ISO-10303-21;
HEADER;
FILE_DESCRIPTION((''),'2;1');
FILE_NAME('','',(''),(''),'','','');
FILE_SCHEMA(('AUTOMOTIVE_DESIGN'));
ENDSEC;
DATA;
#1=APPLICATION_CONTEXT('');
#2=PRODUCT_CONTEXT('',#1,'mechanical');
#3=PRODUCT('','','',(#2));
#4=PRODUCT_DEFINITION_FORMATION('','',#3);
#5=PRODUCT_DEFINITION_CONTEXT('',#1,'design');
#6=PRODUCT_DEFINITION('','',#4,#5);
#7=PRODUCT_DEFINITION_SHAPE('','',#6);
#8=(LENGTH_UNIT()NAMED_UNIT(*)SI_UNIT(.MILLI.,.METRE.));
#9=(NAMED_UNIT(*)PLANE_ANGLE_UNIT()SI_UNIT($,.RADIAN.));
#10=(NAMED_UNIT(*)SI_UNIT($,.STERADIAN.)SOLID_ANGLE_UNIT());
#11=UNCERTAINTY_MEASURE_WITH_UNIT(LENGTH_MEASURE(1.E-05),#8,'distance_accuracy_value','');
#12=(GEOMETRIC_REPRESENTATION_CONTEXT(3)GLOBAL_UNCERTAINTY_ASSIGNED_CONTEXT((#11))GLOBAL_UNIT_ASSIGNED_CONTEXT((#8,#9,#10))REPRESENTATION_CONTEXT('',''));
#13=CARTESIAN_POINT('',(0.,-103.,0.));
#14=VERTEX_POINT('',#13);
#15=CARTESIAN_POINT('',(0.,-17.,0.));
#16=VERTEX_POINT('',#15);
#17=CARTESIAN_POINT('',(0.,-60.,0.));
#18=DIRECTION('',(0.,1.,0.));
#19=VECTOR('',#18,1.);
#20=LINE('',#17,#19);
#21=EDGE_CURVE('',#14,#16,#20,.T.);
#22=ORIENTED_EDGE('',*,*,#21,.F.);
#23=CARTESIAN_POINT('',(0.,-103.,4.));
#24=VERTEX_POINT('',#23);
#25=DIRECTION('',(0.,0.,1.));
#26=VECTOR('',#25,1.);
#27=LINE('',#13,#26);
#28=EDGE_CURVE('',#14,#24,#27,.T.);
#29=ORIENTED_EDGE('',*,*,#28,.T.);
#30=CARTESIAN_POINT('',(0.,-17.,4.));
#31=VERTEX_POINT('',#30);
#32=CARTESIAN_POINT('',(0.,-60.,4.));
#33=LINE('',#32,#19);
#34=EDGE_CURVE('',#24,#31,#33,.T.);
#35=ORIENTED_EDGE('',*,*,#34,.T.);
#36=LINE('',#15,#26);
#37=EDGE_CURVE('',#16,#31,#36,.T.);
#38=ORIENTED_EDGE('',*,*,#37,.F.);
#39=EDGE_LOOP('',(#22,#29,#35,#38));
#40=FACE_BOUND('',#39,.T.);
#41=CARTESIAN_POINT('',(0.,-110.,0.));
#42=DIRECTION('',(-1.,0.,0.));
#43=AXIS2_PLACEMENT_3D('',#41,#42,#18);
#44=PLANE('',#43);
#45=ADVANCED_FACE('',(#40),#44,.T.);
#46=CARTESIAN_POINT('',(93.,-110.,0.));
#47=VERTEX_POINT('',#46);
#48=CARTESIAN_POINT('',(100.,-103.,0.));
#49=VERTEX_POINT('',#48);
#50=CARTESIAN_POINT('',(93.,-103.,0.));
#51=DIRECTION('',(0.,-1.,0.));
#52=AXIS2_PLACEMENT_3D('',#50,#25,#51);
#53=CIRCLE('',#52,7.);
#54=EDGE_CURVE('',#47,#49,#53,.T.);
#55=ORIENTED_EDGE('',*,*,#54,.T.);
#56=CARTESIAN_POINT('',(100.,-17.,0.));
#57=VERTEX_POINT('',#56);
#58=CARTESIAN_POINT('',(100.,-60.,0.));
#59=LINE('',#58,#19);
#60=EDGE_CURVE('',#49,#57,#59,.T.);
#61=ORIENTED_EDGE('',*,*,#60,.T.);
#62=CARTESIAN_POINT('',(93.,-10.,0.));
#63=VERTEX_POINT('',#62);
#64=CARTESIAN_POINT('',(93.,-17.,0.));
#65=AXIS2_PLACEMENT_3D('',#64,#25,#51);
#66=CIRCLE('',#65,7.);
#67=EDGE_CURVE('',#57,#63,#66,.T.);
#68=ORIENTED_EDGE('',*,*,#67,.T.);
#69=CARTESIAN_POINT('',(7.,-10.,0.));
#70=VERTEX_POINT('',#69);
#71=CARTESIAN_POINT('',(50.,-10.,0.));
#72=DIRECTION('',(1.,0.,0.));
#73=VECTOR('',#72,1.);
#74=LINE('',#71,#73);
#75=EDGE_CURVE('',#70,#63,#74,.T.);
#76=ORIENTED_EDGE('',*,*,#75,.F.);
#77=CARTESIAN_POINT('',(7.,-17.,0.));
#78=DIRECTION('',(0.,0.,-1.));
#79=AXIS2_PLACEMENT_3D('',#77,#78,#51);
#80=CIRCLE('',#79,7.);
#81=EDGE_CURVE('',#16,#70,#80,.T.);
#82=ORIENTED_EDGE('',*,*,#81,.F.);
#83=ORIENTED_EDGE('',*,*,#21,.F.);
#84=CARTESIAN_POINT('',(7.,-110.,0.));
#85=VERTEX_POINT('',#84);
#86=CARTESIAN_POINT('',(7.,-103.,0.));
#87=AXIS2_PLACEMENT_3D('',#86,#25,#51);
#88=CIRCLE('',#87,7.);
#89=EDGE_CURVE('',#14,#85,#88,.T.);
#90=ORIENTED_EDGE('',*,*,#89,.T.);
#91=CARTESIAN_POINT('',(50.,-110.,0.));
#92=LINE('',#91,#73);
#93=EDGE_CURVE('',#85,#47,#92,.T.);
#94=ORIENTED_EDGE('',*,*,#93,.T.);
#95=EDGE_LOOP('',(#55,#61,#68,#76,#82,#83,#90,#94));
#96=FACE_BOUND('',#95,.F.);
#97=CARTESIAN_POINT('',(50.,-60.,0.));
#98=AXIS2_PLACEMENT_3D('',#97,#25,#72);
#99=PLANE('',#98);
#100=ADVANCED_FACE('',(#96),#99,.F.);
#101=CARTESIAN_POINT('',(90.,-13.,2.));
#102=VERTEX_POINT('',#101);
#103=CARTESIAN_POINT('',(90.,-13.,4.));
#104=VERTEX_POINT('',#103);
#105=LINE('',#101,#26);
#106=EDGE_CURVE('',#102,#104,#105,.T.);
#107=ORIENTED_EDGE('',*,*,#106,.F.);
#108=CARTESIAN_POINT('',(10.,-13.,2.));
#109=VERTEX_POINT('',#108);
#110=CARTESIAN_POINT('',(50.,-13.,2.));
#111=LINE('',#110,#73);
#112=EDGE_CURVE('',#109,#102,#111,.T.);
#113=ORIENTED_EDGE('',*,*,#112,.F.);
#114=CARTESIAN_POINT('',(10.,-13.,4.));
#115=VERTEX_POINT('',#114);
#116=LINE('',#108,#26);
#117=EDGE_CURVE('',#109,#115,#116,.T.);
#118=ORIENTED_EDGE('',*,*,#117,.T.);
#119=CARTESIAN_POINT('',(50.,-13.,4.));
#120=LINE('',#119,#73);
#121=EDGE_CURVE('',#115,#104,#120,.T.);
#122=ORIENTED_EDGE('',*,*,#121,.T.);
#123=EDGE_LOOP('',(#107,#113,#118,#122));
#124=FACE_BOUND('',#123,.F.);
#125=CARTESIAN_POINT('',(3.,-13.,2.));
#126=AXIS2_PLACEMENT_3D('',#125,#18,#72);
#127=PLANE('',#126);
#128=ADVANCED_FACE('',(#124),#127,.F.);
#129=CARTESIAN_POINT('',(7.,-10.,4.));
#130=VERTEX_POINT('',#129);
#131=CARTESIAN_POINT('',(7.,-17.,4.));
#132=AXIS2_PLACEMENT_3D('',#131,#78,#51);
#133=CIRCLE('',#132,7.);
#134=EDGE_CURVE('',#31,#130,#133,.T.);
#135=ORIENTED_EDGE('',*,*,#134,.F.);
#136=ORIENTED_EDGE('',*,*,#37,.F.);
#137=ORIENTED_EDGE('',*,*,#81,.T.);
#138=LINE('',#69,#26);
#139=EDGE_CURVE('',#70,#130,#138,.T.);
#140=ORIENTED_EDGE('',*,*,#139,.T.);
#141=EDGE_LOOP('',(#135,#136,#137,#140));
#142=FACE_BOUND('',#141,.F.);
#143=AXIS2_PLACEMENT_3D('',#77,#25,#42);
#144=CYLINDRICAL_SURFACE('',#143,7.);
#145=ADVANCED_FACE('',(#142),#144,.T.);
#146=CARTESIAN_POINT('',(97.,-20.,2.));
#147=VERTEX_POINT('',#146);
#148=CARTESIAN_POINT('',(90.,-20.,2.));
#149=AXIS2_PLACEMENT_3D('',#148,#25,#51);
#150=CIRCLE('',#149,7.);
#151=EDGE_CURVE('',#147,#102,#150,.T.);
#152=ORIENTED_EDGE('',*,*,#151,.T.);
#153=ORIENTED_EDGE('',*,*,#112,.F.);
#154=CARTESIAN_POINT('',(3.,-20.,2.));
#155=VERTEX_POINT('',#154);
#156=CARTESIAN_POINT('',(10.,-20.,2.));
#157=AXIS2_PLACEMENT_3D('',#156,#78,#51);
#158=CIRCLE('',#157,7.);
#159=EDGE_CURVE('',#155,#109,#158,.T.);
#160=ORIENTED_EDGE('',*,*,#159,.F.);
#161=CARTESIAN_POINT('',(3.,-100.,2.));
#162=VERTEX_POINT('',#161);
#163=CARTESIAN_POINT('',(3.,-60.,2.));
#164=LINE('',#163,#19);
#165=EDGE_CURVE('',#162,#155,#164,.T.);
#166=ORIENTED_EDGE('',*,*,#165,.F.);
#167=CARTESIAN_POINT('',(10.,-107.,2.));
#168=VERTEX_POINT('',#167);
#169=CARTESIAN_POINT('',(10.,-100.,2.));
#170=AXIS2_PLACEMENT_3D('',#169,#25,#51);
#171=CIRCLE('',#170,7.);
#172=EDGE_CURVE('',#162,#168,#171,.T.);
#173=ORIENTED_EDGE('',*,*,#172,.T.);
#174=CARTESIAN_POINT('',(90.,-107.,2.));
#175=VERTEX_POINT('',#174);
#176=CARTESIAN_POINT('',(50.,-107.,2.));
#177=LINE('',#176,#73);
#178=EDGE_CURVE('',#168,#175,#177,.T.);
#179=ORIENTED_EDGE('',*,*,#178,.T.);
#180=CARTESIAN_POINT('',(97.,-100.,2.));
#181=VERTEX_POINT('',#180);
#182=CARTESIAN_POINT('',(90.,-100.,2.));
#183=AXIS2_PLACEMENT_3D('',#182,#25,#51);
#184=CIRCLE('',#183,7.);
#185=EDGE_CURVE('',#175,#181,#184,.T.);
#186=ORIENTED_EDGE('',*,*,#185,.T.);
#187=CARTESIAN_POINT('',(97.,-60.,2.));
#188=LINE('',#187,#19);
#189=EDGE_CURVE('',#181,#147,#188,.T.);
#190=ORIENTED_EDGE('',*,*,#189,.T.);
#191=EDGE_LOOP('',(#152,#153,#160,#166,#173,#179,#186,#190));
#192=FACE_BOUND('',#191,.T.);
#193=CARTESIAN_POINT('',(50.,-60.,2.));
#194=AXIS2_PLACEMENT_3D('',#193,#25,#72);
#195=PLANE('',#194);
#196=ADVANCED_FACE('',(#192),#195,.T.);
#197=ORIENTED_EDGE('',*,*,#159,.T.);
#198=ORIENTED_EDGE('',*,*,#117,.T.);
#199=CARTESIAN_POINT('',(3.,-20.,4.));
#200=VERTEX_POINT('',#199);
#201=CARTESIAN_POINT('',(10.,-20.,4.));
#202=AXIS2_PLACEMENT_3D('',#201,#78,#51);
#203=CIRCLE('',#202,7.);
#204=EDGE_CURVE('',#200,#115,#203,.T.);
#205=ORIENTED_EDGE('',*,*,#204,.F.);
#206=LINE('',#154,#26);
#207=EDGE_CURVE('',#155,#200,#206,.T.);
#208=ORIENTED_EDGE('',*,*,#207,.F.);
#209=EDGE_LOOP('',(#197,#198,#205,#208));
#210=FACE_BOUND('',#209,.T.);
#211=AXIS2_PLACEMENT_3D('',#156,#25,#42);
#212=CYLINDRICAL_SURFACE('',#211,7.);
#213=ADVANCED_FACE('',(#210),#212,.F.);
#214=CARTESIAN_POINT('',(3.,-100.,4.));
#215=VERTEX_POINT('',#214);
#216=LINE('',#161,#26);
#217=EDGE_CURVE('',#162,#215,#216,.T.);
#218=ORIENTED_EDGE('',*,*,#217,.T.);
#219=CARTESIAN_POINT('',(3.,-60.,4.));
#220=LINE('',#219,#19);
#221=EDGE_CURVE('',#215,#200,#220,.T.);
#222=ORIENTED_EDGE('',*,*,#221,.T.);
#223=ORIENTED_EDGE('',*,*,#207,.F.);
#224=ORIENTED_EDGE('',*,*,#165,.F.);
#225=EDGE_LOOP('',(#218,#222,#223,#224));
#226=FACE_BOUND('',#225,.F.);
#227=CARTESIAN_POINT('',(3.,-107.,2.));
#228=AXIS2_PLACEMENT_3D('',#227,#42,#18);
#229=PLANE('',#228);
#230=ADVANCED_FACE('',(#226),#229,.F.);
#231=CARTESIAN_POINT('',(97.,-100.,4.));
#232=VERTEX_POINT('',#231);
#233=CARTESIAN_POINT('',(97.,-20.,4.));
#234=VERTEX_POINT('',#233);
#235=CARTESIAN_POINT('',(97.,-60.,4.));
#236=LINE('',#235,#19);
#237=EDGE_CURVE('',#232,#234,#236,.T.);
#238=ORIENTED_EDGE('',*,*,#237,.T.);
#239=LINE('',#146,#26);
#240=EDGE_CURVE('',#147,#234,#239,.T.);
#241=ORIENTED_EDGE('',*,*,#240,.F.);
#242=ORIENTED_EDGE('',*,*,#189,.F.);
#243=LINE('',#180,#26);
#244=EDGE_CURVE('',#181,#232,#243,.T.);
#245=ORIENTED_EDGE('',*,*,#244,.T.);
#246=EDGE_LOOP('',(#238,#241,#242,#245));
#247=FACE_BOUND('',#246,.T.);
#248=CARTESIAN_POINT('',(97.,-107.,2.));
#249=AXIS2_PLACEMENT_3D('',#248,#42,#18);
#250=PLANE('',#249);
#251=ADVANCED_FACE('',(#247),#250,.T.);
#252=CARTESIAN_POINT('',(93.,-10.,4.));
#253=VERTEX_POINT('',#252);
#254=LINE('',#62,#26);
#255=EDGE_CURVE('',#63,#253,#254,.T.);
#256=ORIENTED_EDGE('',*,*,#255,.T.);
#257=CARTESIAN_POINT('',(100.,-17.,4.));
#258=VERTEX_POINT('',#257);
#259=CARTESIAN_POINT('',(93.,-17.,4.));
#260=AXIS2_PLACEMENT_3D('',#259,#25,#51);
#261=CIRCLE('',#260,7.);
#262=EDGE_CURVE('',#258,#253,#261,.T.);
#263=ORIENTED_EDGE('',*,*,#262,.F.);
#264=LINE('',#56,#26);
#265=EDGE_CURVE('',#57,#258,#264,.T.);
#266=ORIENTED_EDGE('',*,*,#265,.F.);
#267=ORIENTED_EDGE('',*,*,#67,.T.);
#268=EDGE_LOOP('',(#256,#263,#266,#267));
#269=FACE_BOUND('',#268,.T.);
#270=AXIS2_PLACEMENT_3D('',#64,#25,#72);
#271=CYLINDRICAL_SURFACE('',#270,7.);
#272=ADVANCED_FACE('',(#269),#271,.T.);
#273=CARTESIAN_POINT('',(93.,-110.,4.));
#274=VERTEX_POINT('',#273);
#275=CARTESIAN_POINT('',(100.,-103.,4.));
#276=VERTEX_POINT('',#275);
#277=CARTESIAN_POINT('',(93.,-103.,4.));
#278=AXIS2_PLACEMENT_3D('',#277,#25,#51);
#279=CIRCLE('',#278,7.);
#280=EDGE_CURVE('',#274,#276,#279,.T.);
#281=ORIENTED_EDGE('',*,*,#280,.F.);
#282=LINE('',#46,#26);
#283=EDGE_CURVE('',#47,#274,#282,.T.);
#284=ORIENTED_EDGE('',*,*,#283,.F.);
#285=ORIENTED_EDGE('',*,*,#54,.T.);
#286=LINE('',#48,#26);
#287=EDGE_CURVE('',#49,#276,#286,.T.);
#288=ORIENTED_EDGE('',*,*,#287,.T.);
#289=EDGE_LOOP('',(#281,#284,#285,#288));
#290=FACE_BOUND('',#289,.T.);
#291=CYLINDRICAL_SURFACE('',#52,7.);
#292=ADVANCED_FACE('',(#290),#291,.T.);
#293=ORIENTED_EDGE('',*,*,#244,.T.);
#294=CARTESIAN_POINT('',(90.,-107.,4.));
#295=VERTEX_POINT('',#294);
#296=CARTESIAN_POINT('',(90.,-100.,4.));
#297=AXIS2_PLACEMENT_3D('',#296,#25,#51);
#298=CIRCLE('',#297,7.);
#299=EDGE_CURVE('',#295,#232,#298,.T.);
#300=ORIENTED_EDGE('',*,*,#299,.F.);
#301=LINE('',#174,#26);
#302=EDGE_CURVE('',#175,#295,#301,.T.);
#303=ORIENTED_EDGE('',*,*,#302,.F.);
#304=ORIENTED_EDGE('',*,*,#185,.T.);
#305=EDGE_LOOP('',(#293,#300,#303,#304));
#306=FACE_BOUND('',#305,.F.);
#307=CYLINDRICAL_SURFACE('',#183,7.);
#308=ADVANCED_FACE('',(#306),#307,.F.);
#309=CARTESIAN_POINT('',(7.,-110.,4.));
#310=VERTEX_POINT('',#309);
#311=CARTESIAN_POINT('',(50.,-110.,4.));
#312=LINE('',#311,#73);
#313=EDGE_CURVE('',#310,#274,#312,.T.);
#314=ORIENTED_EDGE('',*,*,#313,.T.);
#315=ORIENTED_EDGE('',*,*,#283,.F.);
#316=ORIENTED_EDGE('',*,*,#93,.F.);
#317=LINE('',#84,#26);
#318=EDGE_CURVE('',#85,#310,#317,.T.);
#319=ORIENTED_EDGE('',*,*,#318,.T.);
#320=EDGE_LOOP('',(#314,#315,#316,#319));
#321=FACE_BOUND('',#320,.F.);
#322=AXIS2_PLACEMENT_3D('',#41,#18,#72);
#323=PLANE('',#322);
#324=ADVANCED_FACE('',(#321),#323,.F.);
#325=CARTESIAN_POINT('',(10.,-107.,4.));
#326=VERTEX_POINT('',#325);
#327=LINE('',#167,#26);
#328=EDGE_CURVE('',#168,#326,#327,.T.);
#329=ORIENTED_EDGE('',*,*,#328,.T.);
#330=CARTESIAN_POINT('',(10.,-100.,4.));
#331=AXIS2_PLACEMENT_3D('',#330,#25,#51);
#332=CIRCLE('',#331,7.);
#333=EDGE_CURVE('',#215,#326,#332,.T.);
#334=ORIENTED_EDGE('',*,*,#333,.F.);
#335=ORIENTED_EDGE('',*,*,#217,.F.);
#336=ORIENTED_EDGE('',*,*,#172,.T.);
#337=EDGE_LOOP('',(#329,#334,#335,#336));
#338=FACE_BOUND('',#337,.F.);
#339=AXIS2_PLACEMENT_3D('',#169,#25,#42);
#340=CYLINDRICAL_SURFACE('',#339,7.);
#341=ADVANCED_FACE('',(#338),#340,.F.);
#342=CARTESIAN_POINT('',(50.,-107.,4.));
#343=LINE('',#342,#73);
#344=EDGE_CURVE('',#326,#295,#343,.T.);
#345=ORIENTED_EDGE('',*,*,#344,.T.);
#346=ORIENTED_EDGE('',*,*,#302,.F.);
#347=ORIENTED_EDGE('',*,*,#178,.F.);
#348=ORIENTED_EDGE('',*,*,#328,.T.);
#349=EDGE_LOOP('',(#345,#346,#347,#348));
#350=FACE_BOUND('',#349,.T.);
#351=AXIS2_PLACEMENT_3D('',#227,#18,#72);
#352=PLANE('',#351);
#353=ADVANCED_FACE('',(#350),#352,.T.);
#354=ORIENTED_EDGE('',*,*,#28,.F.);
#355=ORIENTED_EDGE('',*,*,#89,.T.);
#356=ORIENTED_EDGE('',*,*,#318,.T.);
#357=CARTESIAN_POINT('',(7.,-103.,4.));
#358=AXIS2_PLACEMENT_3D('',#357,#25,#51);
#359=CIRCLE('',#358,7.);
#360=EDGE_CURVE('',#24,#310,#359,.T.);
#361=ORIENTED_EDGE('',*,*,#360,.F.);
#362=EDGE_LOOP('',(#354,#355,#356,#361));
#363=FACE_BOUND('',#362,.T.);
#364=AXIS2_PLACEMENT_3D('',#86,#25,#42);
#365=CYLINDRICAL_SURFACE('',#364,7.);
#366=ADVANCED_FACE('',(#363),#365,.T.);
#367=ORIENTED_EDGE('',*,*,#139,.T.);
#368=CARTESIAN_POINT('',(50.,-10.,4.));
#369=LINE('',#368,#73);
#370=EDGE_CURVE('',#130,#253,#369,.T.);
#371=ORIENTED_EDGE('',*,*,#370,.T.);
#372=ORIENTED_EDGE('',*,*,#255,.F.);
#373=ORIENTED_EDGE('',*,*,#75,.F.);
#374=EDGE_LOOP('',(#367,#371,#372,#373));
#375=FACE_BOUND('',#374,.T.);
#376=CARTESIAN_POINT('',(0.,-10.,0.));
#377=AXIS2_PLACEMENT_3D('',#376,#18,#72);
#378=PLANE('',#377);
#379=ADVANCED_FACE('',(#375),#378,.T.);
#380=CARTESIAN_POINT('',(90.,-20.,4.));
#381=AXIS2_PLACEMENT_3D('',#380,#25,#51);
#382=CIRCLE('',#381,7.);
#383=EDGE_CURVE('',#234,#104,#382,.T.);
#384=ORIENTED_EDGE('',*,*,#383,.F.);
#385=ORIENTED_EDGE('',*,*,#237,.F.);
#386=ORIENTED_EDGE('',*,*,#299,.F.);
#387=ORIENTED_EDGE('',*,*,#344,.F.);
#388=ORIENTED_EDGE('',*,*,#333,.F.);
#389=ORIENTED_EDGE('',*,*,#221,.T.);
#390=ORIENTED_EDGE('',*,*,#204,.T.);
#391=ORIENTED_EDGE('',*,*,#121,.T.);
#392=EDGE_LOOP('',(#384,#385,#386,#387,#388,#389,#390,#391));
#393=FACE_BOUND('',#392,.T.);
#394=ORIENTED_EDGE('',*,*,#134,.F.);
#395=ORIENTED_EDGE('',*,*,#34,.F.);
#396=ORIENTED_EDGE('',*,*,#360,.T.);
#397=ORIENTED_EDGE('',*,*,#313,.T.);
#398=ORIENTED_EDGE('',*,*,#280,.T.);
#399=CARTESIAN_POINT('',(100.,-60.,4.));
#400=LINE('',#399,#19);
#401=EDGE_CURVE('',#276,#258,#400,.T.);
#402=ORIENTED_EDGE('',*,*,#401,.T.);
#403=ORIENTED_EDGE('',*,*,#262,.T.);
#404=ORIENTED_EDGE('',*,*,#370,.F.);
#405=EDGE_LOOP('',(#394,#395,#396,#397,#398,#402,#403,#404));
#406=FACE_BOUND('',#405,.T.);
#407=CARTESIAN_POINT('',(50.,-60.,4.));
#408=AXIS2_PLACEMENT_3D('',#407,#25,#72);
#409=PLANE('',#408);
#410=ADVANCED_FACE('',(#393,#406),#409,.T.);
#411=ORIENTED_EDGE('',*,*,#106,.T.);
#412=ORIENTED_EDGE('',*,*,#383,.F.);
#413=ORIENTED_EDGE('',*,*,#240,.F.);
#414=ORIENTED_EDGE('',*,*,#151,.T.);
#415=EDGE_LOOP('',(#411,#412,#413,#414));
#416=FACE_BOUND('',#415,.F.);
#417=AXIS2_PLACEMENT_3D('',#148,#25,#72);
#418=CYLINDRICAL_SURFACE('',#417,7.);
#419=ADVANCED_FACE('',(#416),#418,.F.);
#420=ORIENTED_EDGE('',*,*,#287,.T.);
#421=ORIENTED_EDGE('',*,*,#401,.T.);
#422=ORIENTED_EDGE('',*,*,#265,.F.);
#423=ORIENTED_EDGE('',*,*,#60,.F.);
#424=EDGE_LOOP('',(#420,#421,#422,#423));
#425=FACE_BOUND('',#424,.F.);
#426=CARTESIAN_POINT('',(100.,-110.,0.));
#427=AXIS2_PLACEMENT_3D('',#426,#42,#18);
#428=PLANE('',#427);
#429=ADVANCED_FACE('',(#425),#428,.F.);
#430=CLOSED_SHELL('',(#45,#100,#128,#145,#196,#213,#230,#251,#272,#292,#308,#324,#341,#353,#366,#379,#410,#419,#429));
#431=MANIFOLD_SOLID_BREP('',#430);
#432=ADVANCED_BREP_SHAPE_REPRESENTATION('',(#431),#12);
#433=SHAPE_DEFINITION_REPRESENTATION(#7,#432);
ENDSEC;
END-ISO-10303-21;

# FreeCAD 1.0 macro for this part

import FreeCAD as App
import Part
import Sketcher

V = App.Vector
Q = App.Units.Quantity


def edges_at(feature, points):
    """Names of the edges that pass closest to the given points."""
    edges = feature.Shape.Edges
    near = lambda p: min(range(len(edges)), key=lambda i: edges[i].distToShape(Part.Vertex(*p))[0])
    return sorted({f"Edge{near(p) + 1}" for p in points})

doc = App.newDocument("Part")
params = doc.addObject("Spreadsheet::Sheet", "Params")
for row, (alias, value) in enumerate([
    ("sketch1_width", "94 mm"),
    ("pad1_length", "2 mm"),
    ("fillet_radius", "7 mm"),
    ("sketch2_width", "100 mm"),
    ("pad2_length", "4 mm"),
    ("fillet2_radius", "7 mm"),
], start=1):
    params.set(f"A{row}", alias)
    params.set(f"B{row}", "=" + value)
    params.setAlias(f"B{row}", alias)

body = doc.addObject("PartDesign::Body", "Body")

sketch1 = doc.addObject("Sketcher::SketchObject", "Sketch")
body.addObject(sketch1)
sketch1.AttachmentSupport = (doc.XY_Plane, [""])
sketch1.MapMode = "FlatFace"
sketch1.AttachmentOffset = App.Placement(V(0, 0, 2), App.Rotation())
sketch1.addGeometry([
    Part.LineSegment(V(3, 97, 0), V(3, 3, 0)),
    Part.LineSegment(V(3, 3, 0), V(97, 3, 0)),
    Part.LineSegment(V(97, 3, 0), V(97, 97, 0)),
    Part.LineSegment(V(97, 97, 0), V(3, 97, 0)),
], False)
sketch1.addConstraint([
    Sketcher.Constraint("Coincident", 0, 2, 1, 1),
    Sketcher.Constraint("Coincident", 1, 2, 2, 1),
    Sketcher.Constraint("Coincident", 2, 2, 3, 1),
    Sketcher.Constraint("Coincident", 3, 2, 0, 1),
    Sketcher.Constraint("Vertical", 0),
    Sketcher.Constraint("Horizontal", 1),
    Sketcher.Constraint("Vertical", 2),
    Sketcher.Constraint("Horizontal", 3),
    Sketcher.Constraint("Equal", 3, 0),
    Sketcher.Constraint("DistanceX", 1, 1, 1, 2, Q("94 mm")),
    Sketcher.Constraint("DistanceX", -1, 1, 0, 2, Q("3 mm")),
    Sketcher.Constraint("DistanceY", -1, 1, 0, 2, Q("3 mm")),
])
sketch1.setExpression("Constraints[9]", "Params.sketch1_width")
pad1 = doc.addObject("PartDesign::Pad", "Pad")
body.addObject(pad1)
pad1.Profile = sketch1
pad1.setExpression("Length", "Params.pad1_length")
doc.recompute()

fillet = doc.addObject("PartDesign::Fillet", "Fillet")
body.addObject(fillet)
fillet.Base = (pad1, edges_at(pad1, [
    (3, 3, 3),
    (3, 97, 3),
    (97, 3, 3),
    (97, 97, 3),
]))
fillet.setExpression("Radius", "Params.fillet_radius")
body2 = doc.addObject("PartDesign::Body", "Body001")

sketch2 = doc.addObject("Sketcher::SketchObject", "Sketch001")
body2.addObject(sketch2)
sketch2.AttachmentSupport = (doc.getObject("XY_Plane001"), [""])
sketch2.MapMode = "FlatFace"
sketch2.addGeometry([
    Part.LineSegment(V(0, 100, 0), V(0, 0, 0)),
    Part.LineSegment(V(0, 0, 0), V(100, 0, 0)),
    Part.LineSegment(V(100, 0, 0), V(100, 100, 0)),
    Part.LineSegment(V(100, 100, 0), V(0, 100, 0)),
], False)
sketch2.addConstraint([
    Sketcher.Constraint("Coincident", 0, 2, 1, 1),
    Sketcher.Constraint("Coincident", 1, 2, 2, 1),
    Sketcher.Constraint("Coincident", 2, 2, 3, 1),
    Sketcher.Constraint("Coincident", 3, 2, 0, 1),
    Sketcher.Constraint("Vertical", 0),
    Sketcher.Constraint("Horizontal", 1),
    Sketcher.Constraint("Vertical", 2),
    Sketcher.Constraint("Horizontal", 3),
    Sketcher.Constraint("Coincident", 0, 2, -1, 1),
    Sketcher.Constraint("Equal", 3, 0),
    Sketcher.Constraint("DistanceX", 1, 1, 1, 2, Q("100 mm")),
])
sketch2.setExpression("Constraints[10]", "Params.sketch2_width")
pad2 = doc.addObject("PartDesign::Pad", "Pad001")
body2.addObject(pad2)
pad2.Profile = sketch2
pad2.setExpression("Length", "Params.pad2_length")
doc.recompute()

fillet2 = doc.addObject("PartDesign::Fillet", "Fillet001")
body2.addObject(fillet2)
fillet2.Base = (pad2, edges_at(pad2, [
    (0, 0, 2),
    (0, 100, 2),
    (100, 0, 2),
    (100, 100, 2),
]))
fillet2.setExpression("Radius", "Params.fillet2_radius")
doc.recompute()

boolean = doc.addObject("PartDesign::Boolean", "Boolean")
body2.addObject(boolean)
boolean.Type = "Cut"
boolean.addObjects([body])
body3 = doc.addObject("PartDesign::Body", "Body002")
doc.recompute()

body2.Placement = App.Placement(V(0, -110, 0), App.Rotation(V(0, 0, 1), 0))
boolean2 = doc.addObject("PartDesign::Boolean", "Boolean001")
body3.addObject(boolean2)
boolean2.Type = "Fuse"
boolean2.addObjects([body2])

doc.recompute()
